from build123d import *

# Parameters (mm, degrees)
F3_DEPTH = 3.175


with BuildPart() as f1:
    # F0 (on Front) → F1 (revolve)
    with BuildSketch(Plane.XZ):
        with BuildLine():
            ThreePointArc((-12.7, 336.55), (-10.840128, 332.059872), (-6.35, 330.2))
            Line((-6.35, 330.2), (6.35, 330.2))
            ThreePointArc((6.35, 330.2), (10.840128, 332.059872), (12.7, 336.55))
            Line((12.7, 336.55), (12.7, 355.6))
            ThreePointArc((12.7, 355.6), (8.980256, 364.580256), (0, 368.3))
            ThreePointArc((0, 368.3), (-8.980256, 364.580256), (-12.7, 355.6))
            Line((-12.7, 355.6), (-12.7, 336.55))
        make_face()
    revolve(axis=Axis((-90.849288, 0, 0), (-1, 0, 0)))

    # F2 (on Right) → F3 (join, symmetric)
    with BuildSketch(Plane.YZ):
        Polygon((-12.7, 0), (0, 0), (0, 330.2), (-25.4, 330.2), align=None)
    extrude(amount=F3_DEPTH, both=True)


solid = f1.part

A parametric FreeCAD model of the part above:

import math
import FreeCAD as App
import Part
import Sketcher

V = App.Vector
Q = App.Units.Quantity


def add_polygon(sketch, points):
    """Adds a closed chain of lines whose ends are joined by coincident constraints."""
    first, n = sketch.GeometryCount, len(points)
    for a, b in zip(points, points[1:] + points[:1]):
        sketch.addGeometry(Part.LineSegment(App.Vector(*a, 0), App.Vector(*b, 0)), False)
    for i in range(n):
        sketch.addConstraint(Sketcher.Constraint("Coincident", first + i, 2, first + (i + 1) % n, 1))

doc = App.newDocument("Part")
body = doc.addObject("PartDesign::Body", "Body")

# Sketch on XZ plane
sketch1 = doc.addObject("Sketcher::SketchObject", "Sketch")
body.addObject(sketch1)
sketch1.AttachmentSupport = (doc.XZ_Plane, [""])
sketch1.MapMode = "FlatFace"
sketch1.addGeometry([
    Part.ArcOfCircle(Part.Circle(V(-6.35, 336.55, 0), V(0, 0, 1), 6.35), math.radians(-179.999998), math.radians(-90.000002)),  # 0
    Part.LineSegment(V(-6.35, 330.2, 0), V(6.35, 330.2, 0)),  # 1
    Part.ArcOfCircle(Part.Circle(V(6.35, 336.55, 0), V(0, 0, 1), 6.35), math.radians(-89.999998), math.radians(-0.000002)),  # 2
    Part.LineSegment(V(12.7, 336.55, 0), V(12.7, 355.6, 0)),  # 3
    Part.ArcOfCircle(Part.Circle(V(0, 355.6, 0), V(0, 0, 1), 12.7), math.radians(0.000002), math.radians(89.999998)),  # 4
    Part.ArcOfCircle(Part.Circle(V(0, 355.6, 0), V(0, 0, 1), 12.7), math.radians(90.000002), math.radians(179.999998)),  # 5
    Part.LineSegment(V(-12.7, 355.6, 0), V(-12.7, 336.55, 0)),  # 6
], False)
sketch1.addConstraint([
    Sketcher.Constraint("Tangent", 0, 2, 1, 1),
    Sketcher.Constraint("Tangent", 1, 2, 2, 1),
    Sketcher.Constraint("Tangent", 2, 2, 3, 1),
    Sketcher.Constraint("Tangent", 3, 2, 4, 1),
    Sketcher.Constraint("Tangent", 4, 2, 5, 1),
    Sketcher.Constraint("Tangent", 5, 2, 6, 1),
    Sketcher.Constraint("Tangent", 6, 2, 0, 1),
    Sketcher.Constraint("Horizontal", 1),
    Sketcher.Constraint("Vertical", 3),
    Sketcher.Constraint("Vertical", 6),
    Sketcher.Constraint("Equal", 0, 2),
    Sketcher.Constraint("Equal", 4, 5),
    Sketcher.Constraint("PointOnObject", 4, 3, -2),
    Sketcher.Constraint("PointOnObject", 4, 2, -2),
    Sketcher.Constraint("Radius", 4, Q("0.5 in")),
    Sketcher.Constraint("Radius", 0, Q("0.25 in")),
    Sketcher.Constraint("DistanceY", -1, 1, 4, 3, Q("14 in")),
    Sketcher.Constraint("DistanceY", -1, 1, 0, 2, Q("13 in")),
])
revolution = doc.addObject("PartDesign::Revolution", "Revolution")
body.addObject(revolution)
revolution.Profile = sketch1
revolution.ReferenceAxis = (sketch1, ["H_Axis"])
revolution.Angle = 360

# Sketch on YZ plane
sketch2 = doc.addObject("Sketcher::SketchObject", "Sketch001")
body.addObject(sketch2)
sketch2.AttachmentSupport = (doc.YZ_Plane, [""])
sketch2.MapMode = "FlatFace"
add_polygon(sketch2, [(-12.7, 0), (0, 0), (0, 330.2), (-25.4, 330.2)])  # lines 0-3
sketch2.addConstraint([
    Sketcher.Constraint("Horizontal", 0),
    Sketcher.Constraint("Vertical", 1),
    Sketcher.Constraint("Horizontal", 2),
    Sketcher.Constraint("Coincident", 0, 2, -1, 1),
    Sketcher.Constraint("DistanceX", 2, 2, 2, 1, Q("1 in")),
    Sketcher.Constraint("DistanceY", 1, 1, 1, 2, Q("13 in")),
    Sketcher.Constraint("DistanceX", 0, 1, 0, 2, Q("0.5 in")),
])
pad1 = doc.addObject("PartDesign::Pad", "Pad")
body.addObject(pad1)
pad1.Profile = sketch2
pad1.Length = Q("0.25 in")
pad1.Midplane = True

doc.recompute()
